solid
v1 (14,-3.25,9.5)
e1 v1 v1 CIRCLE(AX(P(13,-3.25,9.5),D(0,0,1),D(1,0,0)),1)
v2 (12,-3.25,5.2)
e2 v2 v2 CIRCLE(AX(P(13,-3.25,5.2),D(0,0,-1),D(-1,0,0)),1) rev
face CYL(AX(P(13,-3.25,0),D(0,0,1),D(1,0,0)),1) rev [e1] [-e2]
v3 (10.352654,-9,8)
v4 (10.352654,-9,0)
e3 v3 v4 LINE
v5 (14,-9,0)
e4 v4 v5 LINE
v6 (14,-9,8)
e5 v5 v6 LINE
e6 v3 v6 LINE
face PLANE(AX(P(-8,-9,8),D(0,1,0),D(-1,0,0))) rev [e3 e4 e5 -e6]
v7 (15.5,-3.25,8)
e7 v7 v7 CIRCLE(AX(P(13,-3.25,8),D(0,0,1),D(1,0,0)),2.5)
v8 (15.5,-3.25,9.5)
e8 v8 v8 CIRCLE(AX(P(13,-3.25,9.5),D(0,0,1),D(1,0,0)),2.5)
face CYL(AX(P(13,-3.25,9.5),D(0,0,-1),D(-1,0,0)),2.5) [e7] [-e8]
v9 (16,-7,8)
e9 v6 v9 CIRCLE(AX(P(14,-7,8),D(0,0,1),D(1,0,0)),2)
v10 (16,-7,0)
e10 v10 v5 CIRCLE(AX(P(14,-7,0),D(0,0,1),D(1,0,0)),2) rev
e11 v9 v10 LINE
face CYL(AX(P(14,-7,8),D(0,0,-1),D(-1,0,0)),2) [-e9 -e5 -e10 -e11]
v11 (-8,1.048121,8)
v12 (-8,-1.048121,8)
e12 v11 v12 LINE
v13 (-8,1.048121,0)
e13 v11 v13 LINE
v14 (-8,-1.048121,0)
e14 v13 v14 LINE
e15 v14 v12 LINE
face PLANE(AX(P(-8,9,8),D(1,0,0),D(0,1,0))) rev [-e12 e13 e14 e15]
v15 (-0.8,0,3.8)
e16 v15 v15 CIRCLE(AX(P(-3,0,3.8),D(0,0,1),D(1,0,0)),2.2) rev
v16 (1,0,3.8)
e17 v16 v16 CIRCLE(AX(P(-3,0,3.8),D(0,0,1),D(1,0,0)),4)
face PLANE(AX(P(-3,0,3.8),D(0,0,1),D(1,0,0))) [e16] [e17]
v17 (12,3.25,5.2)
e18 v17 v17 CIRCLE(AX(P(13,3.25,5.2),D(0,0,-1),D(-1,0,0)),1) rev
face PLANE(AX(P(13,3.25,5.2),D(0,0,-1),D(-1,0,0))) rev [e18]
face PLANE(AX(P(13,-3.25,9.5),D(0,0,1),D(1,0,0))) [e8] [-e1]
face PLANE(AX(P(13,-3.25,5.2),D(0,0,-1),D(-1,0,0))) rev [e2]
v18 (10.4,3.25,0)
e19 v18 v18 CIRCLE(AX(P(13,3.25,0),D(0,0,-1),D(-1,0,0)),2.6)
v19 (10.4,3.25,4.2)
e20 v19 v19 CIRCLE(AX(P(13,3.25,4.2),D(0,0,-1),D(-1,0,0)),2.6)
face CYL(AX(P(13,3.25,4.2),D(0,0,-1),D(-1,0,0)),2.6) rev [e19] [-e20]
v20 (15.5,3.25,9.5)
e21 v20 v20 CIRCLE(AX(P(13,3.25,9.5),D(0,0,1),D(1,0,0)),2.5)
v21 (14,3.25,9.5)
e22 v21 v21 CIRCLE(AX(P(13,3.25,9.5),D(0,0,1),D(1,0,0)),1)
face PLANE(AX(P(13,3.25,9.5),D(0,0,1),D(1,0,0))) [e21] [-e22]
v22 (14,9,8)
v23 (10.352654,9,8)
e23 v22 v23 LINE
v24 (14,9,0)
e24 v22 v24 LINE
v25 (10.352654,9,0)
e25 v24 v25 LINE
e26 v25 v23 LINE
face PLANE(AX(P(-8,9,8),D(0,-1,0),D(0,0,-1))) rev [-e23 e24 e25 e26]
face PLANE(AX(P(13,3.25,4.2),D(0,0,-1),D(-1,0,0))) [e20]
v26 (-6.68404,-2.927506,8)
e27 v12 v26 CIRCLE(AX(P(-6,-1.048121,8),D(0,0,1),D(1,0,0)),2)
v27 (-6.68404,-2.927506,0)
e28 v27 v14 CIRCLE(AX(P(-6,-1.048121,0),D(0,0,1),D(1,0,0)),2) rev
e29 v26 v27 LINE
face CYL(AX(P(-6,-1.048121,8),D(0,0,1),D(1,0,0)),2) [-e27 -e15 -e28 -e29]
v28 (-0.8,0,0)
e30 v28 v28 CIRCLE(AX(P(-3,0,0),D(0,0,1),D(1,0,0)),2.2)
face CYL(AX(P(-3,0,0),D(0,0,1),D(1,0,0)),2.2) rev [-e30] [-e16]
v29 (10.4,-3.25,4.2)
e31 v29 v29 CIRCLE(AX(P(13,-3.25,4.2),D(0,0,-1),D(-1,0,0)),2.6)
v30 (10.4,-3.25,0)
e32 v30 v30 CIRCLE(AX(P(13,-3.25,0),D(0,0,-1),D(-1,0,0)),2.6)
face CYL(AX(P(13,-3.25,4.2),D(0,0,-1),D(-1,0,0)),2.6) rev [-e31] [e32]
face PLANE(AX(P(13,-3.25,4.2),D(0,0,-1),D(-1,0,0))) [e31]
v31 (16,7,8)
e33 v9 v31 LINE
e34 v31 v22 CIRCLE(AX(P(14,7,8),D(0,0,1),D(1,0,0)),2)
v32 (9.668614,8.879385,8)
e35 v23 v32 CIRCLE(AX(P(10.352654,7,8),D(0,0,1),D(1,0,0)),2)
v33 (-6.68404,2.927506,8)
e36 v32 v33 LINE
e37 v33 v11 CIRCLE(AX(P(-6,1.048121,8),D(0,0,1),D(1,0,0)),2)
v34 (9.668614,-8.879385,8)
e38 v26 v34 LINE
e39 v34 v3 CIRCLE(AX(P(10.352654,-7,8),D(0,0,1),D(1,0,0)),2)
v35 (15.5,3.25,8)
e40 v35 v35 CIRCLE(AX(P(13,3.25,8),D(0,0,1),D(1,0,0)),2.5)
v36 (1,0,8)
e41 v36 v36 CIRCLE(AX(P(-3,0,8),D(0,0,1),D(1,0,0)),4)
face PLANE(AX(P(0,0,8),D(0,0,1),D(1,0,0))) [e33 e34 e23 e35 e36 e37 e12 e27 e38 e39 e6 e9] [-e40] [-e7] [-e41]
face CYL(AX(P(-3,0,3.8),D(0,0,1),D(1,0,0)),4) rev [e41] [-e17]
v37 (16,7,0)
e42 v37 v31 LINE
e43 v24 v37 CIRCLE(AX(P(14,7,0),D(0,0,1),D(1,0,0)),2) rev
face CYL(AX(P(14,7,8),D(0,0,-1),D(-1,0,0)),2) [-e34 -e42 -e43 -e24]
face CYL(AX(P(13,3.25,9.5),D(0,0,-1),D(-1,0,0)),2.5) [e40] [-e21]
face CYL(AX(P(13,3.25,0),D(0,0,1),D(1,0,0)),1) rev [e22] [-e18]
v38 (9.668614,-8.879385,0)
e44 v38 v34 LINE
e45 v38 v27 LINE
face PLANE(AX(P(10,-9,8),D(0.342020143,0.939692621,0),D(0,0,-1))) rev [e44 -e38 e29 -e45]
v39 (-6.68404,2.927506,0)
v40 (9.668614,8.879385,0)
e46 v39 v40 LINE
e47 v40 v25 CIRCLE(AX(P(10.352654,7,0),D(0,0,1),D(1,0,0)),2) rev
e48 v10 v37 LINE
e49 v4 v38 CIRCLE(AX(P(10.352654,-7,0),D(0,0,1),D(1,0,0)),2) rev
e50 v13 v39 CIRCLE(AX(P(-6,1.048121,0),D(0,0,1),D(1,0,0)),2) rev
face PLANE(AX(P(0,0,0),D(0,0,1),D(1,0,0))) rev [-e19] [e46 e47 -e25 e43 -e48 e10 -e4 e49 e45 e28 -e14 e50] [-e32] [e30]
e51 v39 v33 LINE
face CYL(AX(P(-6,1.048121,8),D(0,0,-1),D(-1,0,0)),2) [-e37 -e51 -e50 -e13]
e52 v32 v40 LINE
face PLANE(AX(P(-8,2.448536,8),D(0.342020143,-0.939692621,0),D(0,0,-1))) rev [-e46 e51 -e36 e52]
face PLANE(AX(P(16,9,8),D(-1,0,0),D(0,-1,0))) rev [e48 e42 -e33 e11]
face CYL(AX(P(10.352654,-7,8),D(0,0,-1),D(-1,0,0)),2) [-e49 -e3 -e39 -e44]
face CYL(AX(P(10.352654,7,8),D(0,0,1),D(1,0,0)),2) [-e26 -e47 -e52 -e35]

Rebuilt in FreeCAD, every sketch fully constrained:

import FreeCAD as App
import Part
import Sketcher
from FreeCAD import Vector


def edges_at(feature, points):
    """Names of the edges that pass closest to the given points."""
    edges = feature.Shape.Edges
    near = lambda p: min(range(len(edges)), key=lambda i: edges[i].distToShape(Part.Vertex(*p))[0])
    return sorted({f"Edge{near(p) + 1}" for p in points})


def add_polygon(sketch, points):
    """Adds a closed chain of lines whose ends are joined by coincident constraints."""
    first, n = sketch.GeometryCount, len(points)
    for a, b in zip(points, points[1:] + points[:1]):
        sketch.addGeometry(Part.LineSegment(App.Vector(*a, 0), App.Vector(*b, 0)), False)
    for i in range(n):
        sketch.addConstraint(Sketcher.Constraint("Coincident", first + i, 2, first + (i + 1) % n, 1))

doc = App.newDocument("Part")
body = doc.addObject("PartDesign::Body", "Body")

# Sketch on XY plane
sketch1 = body.newObject("Sketcher::SketchObject", "Sketch")
sketch1.AttachmentSupport = (doc.getObject("XY_Plane"), [""])
sketch1.MapMode = "FlatFace"
add_polygon(sketch1, [(-8, 9), (-8, -9), (16, -9), (16, 9)])  # lines 0-3
sketch1.addConstraint([
    Sketcher.Constraint("Vertical", 0),
    Sketcher.Constraint("Horizontal", 1),
    Sketcher.Constraint("Vertical", 2),
    Sketcher.Constraint("Horizontal", 3),
    Sketcher.Constraint("DistanceX", 1, 1, 1, 2, 24.0),
    Sketcher.Constraint("DistanceY", 0, 2, 0, 1, 18.0),
    Sketcher.Constraint("DistanceX", 0, 2, -1, 1, 8.0),
    Sketcher.Constraint("DistanceY", 0, 2, -1, 1, 9.0),
])
pad1 = body.newObject("PartDesign::Pad", "Pad")
pad1.Profile = sketch1
pad1.Length = 8

# Sketch on XY plane
sketch2 = body.newObject("Sketcher::SketchObject", "Sketch001")
sketch2.AttachmentSupport = (doc.getObject("XY_Plane"), [""])
sketch2.MapMode = "FlatFace"
sketch2.AttachmentOffset = App.Placement(Vector(0, 0, 8), App.Rotation())
sketch2.addGeometry(Part.Circle(Vector(-3, 0, 0), Vector(0, 0, 1), 2.2), False)
sketch2.addConstraint([
    Sketcher.Constraint("PointOnObject", 0, 3, -1),
    Sketcher.Constraint("Diameter", 0, 4.4),
    Sketcher.Constraint("DistanceX", 0, 3, -1, 1, 3.0),
])
pocket1 = body.newObject("PartDesign::Pocket", "Pocket")
pocket1.Profile = sketch2
pocket1.Type = "ThroughAll"

# Sketch on XY plane
sketch3 = body.newObject("Sketcher::SketchObject", "Sketch002")
sketch3.AttachmentSupport = (doc.getObject("XY_Plane"), [""])
sketch3.MapMode = "FlatFace"
sketch3.AttachmentOffset = App.Placement(Vector(0, 0, 8), App.Rotation())
sketch3.addGeometry(Part.Circle(Vector(-3, 0, 0), Vector(0, 0, 1), 4), False)
sketch3.addConstraint([
    Sketcher.Constraint("PointOnObject", 0, 3, -1),
    Sketcher.Constraint("Diameter", 0, 8.0),
    Sketcher.Constraint("DistanceX", 0, 3, -1, 1, 3.0),
])
pocket2 = body.newObject("PartDesign::Pocket", "Pocket001")
pocket2.Profile = sketch3
pocket2.Length = 4.2

# Sketch on XY plane
sketch4 = body.newObject("Sketcher::SketchObject", "Sketch003")
sketch4.AttachmentSupport = (doc.getObject("XY_Plane"), [""])
sketch4.MapMode = "FlatFace"
sketch4.AttachmentOffset = App.Placement(Vector(0, 0, 8), App.Rotation())
sketch4.addGeometry([
    Part.Circle(Vector(13, 3.2, 0), Vector(0, 0, 1), 1),
    Part.Circle(Vector(13, -3.2, 0), Vector(0, 0, 1), 1),
], False)
sketch4.addConstraint([
    Sketcher.Constraint("Equal", 0, 1),
    Sketcher.Constraint("Symmetric", 0, 3, 1, 3, -1),
    Sketcher.Constraint("Diameter", 0, 2.0),
    Sketcher.Constraint("DistanceX", -1, 1, 0, 3, 13.0),
    Sketcher.Constraint("DistanceY", 1, 3, 0, 3, 6.5),
])
pocket3 = body.newObject("PartDesign::Pocket", "Pocket002")
pocket3.Profile = sketch4
pocket3.Type = "ThroughAll"

# Sketch on XY plane
sketch5 = body.newObject("Sketcher::SketchObject", "Sketch004")
sketch5.AttachmentSupport = (doc.getObject("XY_Plane"), [""])
sketch5.MapMode = "FlatFace"
sketch5.addGeometry([
    Part.Circle(Vector(13, 3.2, 0), Vector(0, 0, 1), 2.6),
    Part.Circle(Vector(13, -3.2, 0), Vector(0, 0, 1), 2.6),
], False)
sketch5.addConstraint([
    Sketcher.Constraint("Equal", 0, 1),
    Sketcher.Constraint("Symmetric", 0, 3, 1, 3, -1),
    Sketcher.Constraint("Diameter", 0, 5.2),
    Sketcher.Constraint("DistanceX", -1, 1, 0, 3, 13.0),
    Sketcher.Constraint("DistanceY", 1, 3, 0, 3, 6.5),
])
pocket4 = body.newObject("PartDesign::Pocket", "Pocket003")
pocket4.Profile = sketch5
pocket4.Length = 4.2
pocket4.Reversed = True

# Sketch on XY plane
sketch6 = body.newObject("Sketcher::SketchObject", "Sketch005")
sketch6.AttachmentSupport = (doc.getObject("XY_Plane"), [""])
sketch6.MapMode = "FlatFace"
sketch6.AttachmentOffset = App.Placement(Vector(0, 0, 4.2), App.Rotation())
sketch6.addGeometry([
    Part.Circle(Vector(13, 3.2, 0), Vector(0, 0, 1), 1.7),
    Part.Circle(Vector(13, -3.2, 0), Vector(0, 0, 1), 1.7),
], False)
sketch6.addConstraint([
    Sketcher.Constraint("Equal", 0, 1),
    Sketcher.Constraint("Symmetric", 0, 3, 1, 3, -1),
    Sketcher.Constraint("Diameter", 0, 3.4),
    Sketcher.Constraint("DistanceX", -1, 1, 0, 3, 13.0),
    Sketcher.Constraint("DistanceY", 1, 3, 0, 3, 6.5),
])
pad2 = body.newObject("PartDesign::Pad", "Pad001")
pad2.Profile = sketch6
pad2.Length = 1
doc.recompute()

chamfer = body.newObject("PartDesign::Chamfer", "Chamfer")
chamfer.Base = (pad2, edges_at(pad2, [(-8, 9, 4)]))
chamfer.ChamferType = "Two distances"
chamfer.Size = 18
chamfer.Size2 = 6.551464
chamfer.FlipDirection = True
doc.recompute()

chamfer2 = body.newObject("PartDesign::Chamfer", "Chamfer001")
chamfer2.Base = (chamfer, edges_at(chamfer, [(-8, -9, 4)]))
chamfer2.ChamferType = "Two distances"
chamfer2.Size = 18
chamfer2.Size2 = 6.551464
chamfer2.FlipDirection = True
doc.recompute()

fillet = body.newObject("PartDesign::Fillet", "Fillet")
fillet.Base = (chamfer2, edges_at(chamfer2, [
    (10, -9, 4),
    (-8, 2.449, 4),
    (-8, -2.449, 4),
    (10, 9, 4),
    (16, 9, 4),
    (16, -9, 4),
]))
fillet.Radius = 2

# Sketch on XY plane
sketch7 = body.newObject("Sketcher::SketchObject", "Sketch006")
sketch7.AttachmentSupport = (doc.getObject("XY_Plane"), [""])
sketch7.MapMode = "FlatFace"
sketch7.AttachmentOffset = App.Placement(Vector(0, 0, 8), App.Rotation())
sketch7.addGeometry([
    Part.Circle(Vector(13, -3.2, 0), Vector(0, 0, 1), 2.5),
    Part.Circle(Vector(13, -3.2, 0), Vector(0, 0, 1), 1),
    Part.Circle(Vector(13, 3.2, 0), Vector(0, 0, 1), 2.5),
    Part.Circle(Vector(13, 3.2, 0), Vector(0, 0, 1), 1),
], False)
sketch7.addConstraint([
    Sketcher.Constraint("Coincident", 1, 3, 0, 3),
    Sketcher.Constraint("Coincident", 3, 3, 2, 3),
    Sketcher.Constraint("Equal", 0, 2),
    Sketcher.Constraint("Equal", 1, 3),
    Sketcher.Constraint("Symmetric", 0, 3, 2, 3, -1),
    Sketcher.Constraint("Diameter", 0, 5.0),
    Sketcher.Constraint("Diameter", 1, 2.0),
    Sketcher.Constraint("DistanceX", -1, 1, 0, 3, 13.0),
    Sketcher.Constraint("DistanceY", 0, 3, 2, 3, 6.5),
])
pad3 = body.newObject("PartDesign::Pad", "Pad002")
pad3.Profile = sketch7
pad3.Length = 1.5

doc.recompute()
